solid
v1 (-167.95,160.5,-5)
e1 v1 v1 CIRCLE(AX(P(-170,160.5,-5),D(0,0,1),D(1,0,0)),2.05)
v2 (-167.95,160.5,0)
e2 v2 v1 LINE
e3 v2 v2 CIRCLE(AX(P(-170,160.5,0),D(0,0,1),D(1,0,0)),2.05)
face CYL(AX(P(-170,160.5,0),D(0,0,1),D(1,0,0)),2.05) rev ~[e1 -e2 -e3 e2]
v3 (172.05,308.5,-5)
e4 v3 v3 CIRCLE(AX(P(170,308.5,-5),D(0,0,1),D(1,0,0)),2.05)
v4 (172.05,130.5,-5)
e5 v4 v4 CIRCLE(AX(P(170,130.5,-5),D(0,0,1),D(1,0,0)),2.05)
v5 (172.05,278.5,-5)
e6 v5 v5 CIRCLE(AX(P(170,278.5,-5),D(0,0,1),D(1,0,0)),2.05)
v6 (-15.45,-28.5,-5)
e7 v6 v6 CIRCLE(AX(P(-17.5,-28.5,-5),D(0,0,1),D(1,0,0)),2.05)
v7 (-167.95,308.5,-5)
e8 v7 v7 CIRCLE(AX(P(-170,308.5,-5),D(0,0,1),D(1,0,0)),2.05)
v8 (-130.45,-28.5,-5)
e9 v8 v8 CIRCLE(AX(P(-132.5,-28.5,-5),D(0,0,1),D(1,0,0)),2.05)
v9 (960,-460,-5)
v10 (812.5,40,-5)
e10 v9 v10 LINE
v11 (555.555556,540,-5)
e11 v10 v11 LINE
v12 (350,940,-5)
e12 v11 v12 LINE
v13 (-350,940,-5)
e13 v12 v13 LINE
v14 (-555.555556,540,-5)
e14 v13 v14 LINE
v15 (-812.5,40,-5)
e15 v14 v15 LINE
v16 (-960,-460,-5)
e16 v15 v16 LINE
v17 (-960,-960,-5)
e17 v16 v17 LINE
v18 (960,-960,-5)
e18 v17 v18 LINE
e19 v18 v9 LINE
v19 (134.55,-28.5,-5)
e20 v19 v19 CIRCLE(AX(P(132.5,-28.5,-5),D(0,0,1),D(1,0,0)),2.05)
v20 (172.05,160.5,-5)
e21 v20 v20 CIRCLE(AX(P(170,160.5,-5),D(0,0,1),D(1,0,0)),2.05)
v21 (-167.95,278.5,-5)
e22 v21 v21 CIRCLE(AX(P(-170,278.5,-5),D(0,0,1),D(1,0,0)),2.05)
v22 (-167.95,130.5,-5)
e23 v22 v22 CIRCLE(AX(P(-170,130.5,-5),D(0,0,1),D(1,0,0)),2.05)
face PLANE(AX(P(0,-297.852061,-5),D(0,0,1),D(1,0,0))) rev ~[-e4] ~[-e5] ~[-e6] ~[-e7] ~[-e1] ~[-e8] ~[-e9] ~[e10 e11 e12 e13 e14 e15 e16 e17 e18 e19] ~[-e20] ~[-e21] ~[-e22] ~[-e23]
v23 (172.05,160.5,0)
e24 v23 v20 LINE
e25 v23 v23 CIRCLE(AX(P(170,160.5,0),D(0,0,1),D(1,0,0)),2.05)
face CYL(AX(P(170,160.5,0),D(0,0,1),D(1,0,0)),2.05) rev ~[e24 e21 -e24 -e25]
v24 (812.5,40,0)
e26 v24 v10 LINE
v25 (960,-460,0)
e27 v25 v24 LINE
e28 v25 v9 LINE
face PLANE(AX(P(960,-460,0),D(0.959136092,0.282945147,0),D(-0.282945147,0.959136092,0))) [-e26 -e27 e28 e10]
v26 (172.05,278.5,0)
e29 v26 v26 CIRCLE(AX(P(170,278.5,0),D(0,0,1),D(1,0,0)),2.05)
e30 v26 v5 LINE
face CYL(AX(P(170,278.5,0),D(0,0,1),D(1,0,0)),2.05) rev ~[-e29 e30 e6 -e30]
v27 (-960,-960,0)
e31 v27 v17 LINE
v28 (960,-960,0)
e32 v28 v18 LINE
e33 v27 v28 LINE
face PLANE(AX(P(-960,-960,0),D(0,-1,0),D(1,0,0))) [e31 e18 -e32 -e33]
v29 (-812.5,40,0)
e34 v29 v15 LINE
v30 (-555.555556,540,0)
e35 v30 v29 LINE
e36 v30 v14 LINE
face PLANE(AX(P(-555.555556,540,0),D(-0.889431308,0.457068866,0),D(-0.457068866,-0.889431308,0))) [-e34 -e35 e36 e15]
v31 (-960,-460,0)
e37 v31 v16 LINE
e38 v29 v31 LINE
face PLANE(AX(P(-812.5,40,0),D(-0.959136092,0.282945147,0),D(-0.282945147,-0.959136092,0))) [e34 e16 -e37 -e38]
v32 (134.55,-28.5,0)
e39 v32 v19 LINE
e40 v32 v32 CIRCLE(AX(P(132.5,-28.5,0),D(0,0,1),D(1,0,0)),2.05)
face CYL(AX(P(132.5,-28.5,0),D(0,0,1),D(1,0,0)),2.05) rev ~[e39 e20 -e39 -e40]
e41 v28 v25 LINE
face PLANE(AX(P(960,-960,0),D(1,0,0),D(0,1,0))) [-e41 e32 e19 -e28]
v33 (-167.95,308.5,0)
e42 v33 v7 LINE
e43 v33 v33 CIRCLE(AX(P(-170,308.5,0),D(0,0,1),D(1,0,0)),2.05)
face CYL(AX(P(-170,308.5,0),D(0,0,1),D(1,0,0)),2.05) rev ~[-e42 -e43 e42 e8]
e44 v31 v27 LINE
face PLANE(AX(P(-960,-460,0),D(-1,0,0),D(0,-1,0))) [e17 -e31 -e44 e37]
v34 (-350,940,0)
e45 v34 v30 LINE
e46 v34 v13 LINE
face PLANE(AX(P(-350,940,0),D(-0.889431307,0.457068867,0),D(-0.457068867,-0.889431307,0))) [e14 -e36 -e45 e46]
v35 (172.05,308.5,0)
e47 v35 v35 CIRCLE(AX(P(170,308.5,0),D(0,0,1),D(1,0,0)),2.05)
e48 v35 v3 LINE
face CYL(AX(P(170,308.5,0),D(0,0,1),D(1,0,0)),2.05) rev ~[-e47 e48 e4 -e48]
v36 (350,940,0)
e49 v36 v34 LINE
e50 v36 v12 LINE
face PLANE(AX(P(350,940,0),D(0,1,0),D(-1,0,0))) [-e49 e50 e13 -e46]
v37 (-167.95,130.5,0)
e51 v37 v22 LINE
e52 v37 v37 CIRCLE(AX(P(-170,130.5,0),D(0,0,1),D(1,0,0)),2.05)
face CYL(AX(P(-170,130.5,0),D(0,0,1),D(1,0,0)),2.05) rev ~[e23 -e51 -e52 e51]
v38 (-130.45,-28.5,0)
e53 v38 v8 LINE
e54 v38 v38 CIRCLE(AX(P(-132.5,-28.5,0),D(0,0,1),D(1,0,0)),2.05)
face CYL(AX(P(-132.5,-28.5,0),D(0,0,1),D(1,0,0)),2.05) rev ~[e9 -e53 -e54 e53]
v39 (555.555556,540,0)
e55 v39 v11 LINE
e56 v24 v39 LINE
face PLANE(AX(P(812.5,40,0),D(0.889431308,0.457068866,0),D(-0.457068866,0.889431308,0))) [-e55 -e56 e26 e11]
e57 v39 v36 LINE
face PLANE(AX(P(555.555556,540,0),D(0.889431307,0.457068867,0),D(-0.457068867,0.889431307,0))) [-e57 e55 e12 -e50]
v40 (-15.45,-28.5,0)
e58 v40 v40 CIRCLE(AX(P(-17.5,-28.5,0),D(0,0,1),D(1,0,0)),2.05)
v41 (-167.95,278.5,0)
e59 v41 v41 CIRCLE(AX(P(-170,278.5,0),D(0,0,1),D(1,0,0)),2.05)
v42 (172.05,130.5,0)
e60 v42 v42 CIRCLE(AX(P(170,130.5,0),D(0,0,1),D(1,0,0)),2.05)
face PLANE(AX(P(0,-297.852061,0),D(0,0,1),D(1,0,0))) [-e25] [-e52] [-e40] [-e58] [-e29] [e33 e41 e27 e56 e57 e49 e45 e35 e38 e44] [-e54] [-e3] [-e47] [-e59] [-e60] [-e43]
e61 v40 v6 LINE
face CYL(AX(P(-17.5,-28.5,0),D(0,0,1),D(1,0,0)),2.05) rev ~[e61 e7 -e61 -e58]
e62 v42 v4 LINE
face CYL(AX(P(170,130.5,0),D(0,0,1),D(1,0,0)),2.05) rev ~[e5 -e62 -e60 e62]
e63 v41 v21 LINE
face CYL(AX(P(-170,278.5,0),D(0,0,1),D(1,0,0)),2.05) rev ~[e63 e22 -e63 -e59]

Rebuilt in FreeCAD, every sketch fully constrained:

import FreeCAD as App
import Part
import Sketcher
Q = App.Units.Quantity

doc = App.newDocument("Part")
body = doc.addObject("PartDesign::Body", "Body")

# Sketch on XY plane
sketch1 = body.newObject("Sketcher::SketchObject", "Sketch")
sketch1.AttachmentSupport = (doc.getObject("XY_Plane"), [""])
sketch1.MapMode = "FlatFace"
sketch1.addGeometry(Part.LineSegment(App.Vector(-960, -460, 0), App.Vector(-960, -960, 0)), False)
sketch1.addGeometry(Part.LineSegment(App.Vector(-960, -960, 0), App.Vector(960, -960, 0)), False)
sketch1.addGeometry(Part.LineSegment(App.Vector(960, -960, 0), App.Vector(960, -460, 0)), False)
sketch1.addGeometry(Part.LineSegment(App.Vector(960, -460, 0), App.Vector(812.5, 40, 0)), False)
sketch1.addGeometry(Part.LineSegment(App.Vector(812.5, 40, 0), App.Vector(555.6, 540, 0)), False)
sketch1.addGeometry(Part.LineSegment(App.Vector(555.6, 540, 0), App.Vector(350, 940, 0)), False)
sketch1.addGeometry(Part.LineSegment(App.Vector(350, 940, 0), App.Vector(-350, 940, 0)), False)
sketch1.addGeometry(Part.LineSegment(App.Vector(-350, 940, 0), App.Vector(-555.6, 540, 0)), False)
sketch1.addGeometry(Part.LineSegment(App.Vector(-555.6, 540, 0), App.Vector(-812.5, 40, 0)), False)
sketch1.addGeometry(Part.LineSegment(App.Vector(-812.5, 40, 0), App.Vector(-960, -460, 0)), False)
sketch1.addGeometry(Part.Circle(App.Vector(-132.5, -28.5, 0), App.Vector(0, 0, 1), 2), False)
sketch1.addGeometry(Part.Circle(App.Vector(-17.5, -28.5, 0), App.Vector(0, 0, 1), 2), False)
sketch1.addGeometry(Part.Circle(App.Vector(-170, 130.5, 0), App.Vector(0, 0, 1), 2), False)
sketch1.addGeometry(Part.Circle(App.Vector(132.5, -28.5, 0), App.Vector(0, 0, 1), 2), False)
sketch1.addGeometry(Part.Circle(App.Vector(170, 130.5, 0), App.Vector(0, 0, 1), 2), False)
sketch1.addGeometry(Part.Circle(App.Vector(-170, 160.5, 0), App.Vector(0, 0, 1), 2), False)
sketch1.addGeometry(Part.Circle(App.Vector(-170, 278.5, 0), App.Vector(0, 0, 1), 2), False)
sketch1.addGeometry(Part.Circle(App.Vector(-170, 308.5, 0), App.Vector(0, 0, 1), 2), False)
sketch1.addGeometry(Part.Circle(App.Vector(170, 160.5, 0), App.Vector(0, 0, 1), 2), False)
sketch1.addGeometry(Part.Circle(App.Vector(170, 278.5, 0), App.Vector(0, 0, 1), 2), False)
sketch1.addGeometry(Part.Circle(App.Vector(170, 308.5, 0), App.Vector(0, 0, 1), 2), False)
sketch1.addConstraint(Sketcher.Constraint("Coincident", 0, 2, 1, 1))
sketch1.addConstraint(Sketcher.Constraint("Coincident", 1, 2, 2, 1))
sketch1.addConstraint(Sketcher.Constraint("Coincident", 2, 2, 3, 1))
sketch1.addConstraint(Sketcher.Constraint("Coincident", 3, 2, 4, 1))
sketch1.addConstraint(Sketcher.Constraint("Coincident", 4, 2, 5, 1))
sketch1.addConstraint(Sketcher.Constraint("Coincident", 5, 2, 6, 1))
sketch1.addConstraint(Sketcher.Constraint("Coincident", 6, 2, 7, 1))
sketch1.addConstraint(Sketcher.Constraint("Coincident", 7, 2, 8, 1))
sketch1.addConstraint(Sketcher.Constraint("Coincident", 8, 2, 9, 1))
sketch1.addConstraint(Sketcher.Constraint("Coincident", 9, 2, 0, 1))
sketch1.addConstraint(Sketcher.Constraint("Vertical", 0))
sketch1.addConstraint(Sketcher.Constraint("Horizontal", 1))
sketch1.addConstraint(Sketcher.Constraint("Vertical", 2))
sketch1.addConstraint(Sketcher.Constraint("Horizontal", 6))
sketch1.addConstraint(Sketcher.Constraint("Equal", 10, 11))
sketch1.addConstraint(Sketcher.Constraint("Equal", 11, 12))
sketch1.addConstraint(Sketcher.Constraint("Equal", 12, 13))
sketch1.addConstraint(Sketcher.Constraint("Equal", 13, 14))
sketch1.addConstraint(Sketcher.Constraint("Equal", 14, 15))
sketch1.addConstraint(Sketcher.Constraint("Equal", 15, 16))
sketch1.addConstraint(Sketcher.Constraint("Equal", 16, 17))
sketch1.addConstraint(Sketcher.Constraint("Equal", 17, 18))
sketch1.addConstraint(Sketcher.Constraint("Equal", 18, 19))
sketch1.addConstraint(Sketcher.Constraint("Equal", 19, 20))
sketch1.addConstraint(Sketcher.Constraint("Symmetric", 10, 3, 13, 3, -2))
sketch1.addConstraint(Sketcher.Constraint("Symmetric", 12, 3, 14, 3, -2))
sketch1.addConstraint(Sketcher.Constraint("Symmetric", 15, 3, 18, 3, -2))
sketch1.addConstraint(Sketcher.Constraint("Symmetric", 16, 3, 19, 3, -2))
sketch1.addConstraint(Sketcher.Constraint("Symmetric", 17, 3, 20, 3, -2))
sketch1.addConstraint(Sketcher.Constraint("Symmetric", 4, 2, 7, 2, -2))
sketch1.addConstraint(Sketcher.Constraint("Symmetric", 3, 2, 8, 2, -2))
sketch1.addConstraint(Sketcher.Constraint("Symmetric", 2, 2, 9, 2, -2))
sketch1.addConstraint(Sketcher.Constraint("Parallel", 4, 5))
sketch1.addConstraint(Sketcher.Constraint("Parallel", 7, 8))
sketch1.addConstraint(Sketcher.Constraint("Horizontal", 10, 3, 11, 3))
sketch1.addConstraint(Sketcher.Constraint("Vertical", 12, 3, 15, 3))
sketch1.addConstraint(Sketcher.Constraint("Vertical", 15, 3, 16, 3))
sketch1.addConstraint(Sketcher.Constraint("Vertical", 16, 3, 17, 3))
sketch1.addConstraint(Sketcher.Constraint("Diameter", 10, Q("4.1 mm")))
sketch1.addConstraint(Sketcher.Constraint("DistanceX", 1, 1, 1, 2, Q("1920 mm")))
sketch1.addConstraint(Sketcher.Constraint("DistanceX", 6, 2, 6, 1, Q("700 mm")))
sketch1.addConstraint(Sketcher.Constraint("DistanceY", 0, 2, 0, 1, Q("500 mm")))
sketch1.addConstraint(Sketcher.Constraint("DistanceX", 12, 3, -1, 1, Q("170 mm")))
sketch1.addConstraint(Sketcher.Constraint("DistanceY", 0, 2, -1, 1, Q("960 mm")))
sketch1.addConstraint(Sketcher.Constraint("DistanceY", -1, 1, 3, 2, Q("40 mm")))
sketch1.addConstraint(Sketcher.Constraint("DistanceY", -1, 1, 4, 2, Q("540 mm")))
sketch1.addConstraint(Sketcher.Constraint("DistanceY", -1, 1, 5, 2, Q("940 mm")))
sketch1.addConstraint(Sketcher.Constraint("DistanceX", 10, 3, 11, 3, Q("115 mm")))
sketch1.addConstraint(Sketcher.Constraint("DistanceY", 10, 3, 12, 3, Q("159 mm")))
sketch1.addConstraint(Sketcher.Constraint("DistanceX", 11, 3, 13, 3, Q("150 mm")))
sketch1.addConstraint(Sketcher.Constraint("DistanceY", 12, 3, 15, 3, Q("30 mm")))
sketch1.addConstraint(Sketcher.Constraint("DistanceY", 15, 3, 16, 3, Q("118 mm")))
sketch1.addConstraint(Sketcher.Constraint("DistanceY", 16, 3, 17, 3, Q("30 mm")))
sketch1.addConstraint(Sketcher.Constraint("DistanceX", 13, 3, 3, 2, Q("680 mm")))
sketch1.addConstraint(Sketcher.Constraint("DistanceY", 10, 3, -1, 1, Q("28.5 mm")))
pad1 = body.newObject("PartDesign::Pad", "Pad")
pad1.Profile = sketch1
pad1.Length = 5
pad1.Reversed = True

doc.recompute()
